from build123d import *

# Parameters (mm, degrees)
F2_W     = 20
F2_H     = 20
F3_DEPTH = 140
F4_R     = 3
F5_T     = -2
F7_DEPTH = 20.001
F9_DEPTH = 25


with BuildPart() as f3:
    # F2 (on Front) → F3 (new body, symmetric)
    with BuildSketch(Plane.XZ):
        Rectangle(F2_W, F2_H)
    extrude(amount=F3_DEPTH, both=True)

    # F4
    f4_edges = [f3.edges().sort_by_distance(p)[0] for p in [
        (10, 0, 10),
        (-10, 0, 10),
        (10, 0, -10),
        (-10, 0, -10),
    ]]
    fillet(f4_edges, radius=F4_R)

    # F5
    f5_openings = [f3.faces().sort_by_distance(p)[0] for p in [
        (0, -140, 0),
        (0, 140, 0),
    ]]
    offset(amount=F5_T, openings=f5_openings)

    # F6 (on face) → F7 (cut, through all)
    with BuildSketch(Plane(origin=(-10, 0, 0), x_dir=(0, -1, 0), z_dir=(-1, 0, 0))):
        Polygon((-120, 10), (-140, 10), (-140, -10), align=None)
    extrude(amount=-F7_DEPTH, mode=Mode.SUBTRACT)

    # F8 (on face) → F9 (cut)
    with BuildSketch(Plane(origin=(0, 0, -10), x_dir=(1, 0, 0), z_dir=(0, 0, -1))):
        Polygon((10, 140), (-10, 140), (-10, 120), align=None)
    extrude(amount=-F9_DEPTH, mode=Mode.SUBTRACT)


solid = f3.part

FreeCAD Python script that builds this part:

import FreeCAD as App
import Part
import Sketcher

V = App.Vector
Q = App.Units.Quantity


def edges_at(feature, points):
    """Names of the edges that pass closest to the given points."""
    edges = feature.Shape.Edges
    near = lambda p: min(range(len(edges)), key=lambda i: edges[i].distToShape(Part.Vertex(*p))[0])
    return sorted({f"Edge{near(p) + 1}" for p in points})


def faces_at(feature, points):
    """Names of the faces that lie closest to the given points."""
    faces = feature.Shape.Faces
    near = lambda p: min(range(len(faces)), key=lambda i: faces[i].distToShape(Part.Vertex(*p))[0])
    return sorted({f"Face{near(p) + 1}" for p in points})


def add_polygon(sketch, points):
    """Adds a closed chain of lines whose ends are joined by coincident constraints."""
    first, n = sketch.GeometryCount, len(points)
    for a, b in zip(points, points[1:] + points[:1]):
        sketch.addGeometry(Part.LineSegment(App.Vector(*a, 0), App.Vector(*b, 0)), False)
    for i in range(n):
        sketch.addConstraint(Sketcher.Constraint("Coincident", first + i, 2, first + (i + 1) % n, 1))

doc = App.newDocument("Part")
params = doc.addObject("Spreadsheet::Sheet", "Params")
for row, (alias, value) in enumerate([
    ("sketch1_width", "20 mm"),
    ("pad1_length", "280 mm"),
    ("fillet_radius", "3 mm"),
    ("thickness_wall", "2 mm"),
    ("sketch2_width", "20 mm"),
    ("sketch3_width", "20 mm"),
    ("pocket2_length", "25 mm"),
], start=1):
    params.set(f"A{row}", alias)
    params.set(f"B{row}", "=" + value)
    params.setAlias(f"B{row}", alias)

body = doc.addObject("PartDesign::Body", "Body")

# Sketch on XZ plane
sketch1 = body.newObject("Sketcher::SketchObject", "Sketch")
sketch1.AttachmentSupport = (doc.getObject("XZ_Plane"), [""])
sketch1.MapMode = "FlatFace"
add_polygon(sketch1, [(-10, 10), (-10, -10), (10, -10), (10, 10)])  # lines 0-3
sketch1.addConstraint([
    Sketcher.Constraint("Vertical", 0),
    Sketcher.Constraint("Horizontal", 1),
    Sketcher.Constraint("Vertical", 2),
    Sketcher.Constraint("Horizontal", 3),
    Sketcher.Constraint("Symmetric", 0, 2, 2, 2, -1, 1),
    Sketcher.Constraint("Equal", 3, 0),
    Sketcher.Constraint("DistanceX", 1, 1, 1, 2, Q("20 mm")),
])
sketch1.setExpression("Constraints[10]", "Params.sketch1_width")
pad1 = body.newObject("PartDesign::Pad", "Pad")
pad1.Profile = sketch1
pad1.setExpression("Length", "Params.pad1_length")
pad1.Midplane = True
doc.recompute()

fillet = body.newObject("PartDesign::Fillet", "Fillet")
fillet.Base = (pad1, edges_at(pad1, [
    (10, 0, 10),
    (-10, 0, 10),
    (10, 0, -10),
    (-10, 0, -10),
]))
fillet.setExpression("Radius", "Params.fillet_radius")
doc.recompute()

thickness = body.newObject("PartDesign::Thickness", "Thickness")
thickness.Base = (fillet, faces_at(fillet, [(0, -140, 0), (0, 140, 0)]))
thickness.setExpression("Value", "Params.thickness_wall")
thickness.Reversed = True
thickness.Join = "Arc"

# Sketch on YZ plane
sketch2 = body.newObject("Sketcher::SketchObject", "Sketch001")
sketch2.AttachmentSupport = (doc.getObject("YZ_Plane"), [""])
sketch2.MapMode = "FlatFace"
sketch2.AttachmentOffset = App.Placement(V(0, 0, -10), App.Rotation())
add_polygon(sketch2, [(120, 10), (140, 10), (140, -10)])  # lines 0-2
sketch2.addConstraint([
    Sketcher.Constraint("Horizontal", 0),
    Sketcher.Constraint("Vertical", 1),
    Sketcher.Constraint("Equal", 0, 1),
    Sketcher.Constraint("DistanceX", 0, 1, 0, 2, Q("20 mm")),
    Sketcher.Constraint("DistanceX", -1, 1, 0, 2, Q("140 mm")),
    Sketcher.Constraint("DistanceY", -1, 1, 0, 2, Q("10 mm")),
])
sketch2.setExpression("Constraints[6]", "Params.sketch2_width")
pocket1 = body.newObject("PartDesign::Pocket", "Pocket")
pocket1.Profile = sketch2
pocket1.Type = "ThroughAll"
pocket1.Reversed = True

# Sketch on XY plane
sketch3 = body.newObject("Sketcher::SketchObject", "Sketch002")
sketch3.AttachmentSupport = (doc.getObject("XY_Plane"), [""])
sketch3.MapMode = "FlatFace"
sketch3.AttachmentOffset = App.Placement(V(0, 0, -10), App.Rotation())
add_polygon(sketch3, [(10, -140), (-10, -140), (-10, -120)])  # lines 0-2
sketch3.addConstraint([
    Sketcher.Constraint("Horizontal", 0),
    Sketcher.Constraint("Vertical", 1),
    Sketcher.Constraint("Equal", 0, 1),
    Sketcher.Constraint("DistanceX", 0, 2, 0, 1, Q("20 mm")),
    Sketcher.Constraint("DistanceX", 0, 2, -1, 1, Q("10 mm")),
    Sketcher.Constraint("DistanceY", 0, 2, -1, 1, Q("140 mm")),
])
sketch3.setExpression("Constraints[6]", "Params.sketch3_width")
pocket2 = body.newObject("PartDesign::Pocket", "Pocket001")
pocket2.Profile = sketch3
pocket2.setExpression("Length", "Params.pocket2_length")
pocket2.Reversed = True

doc.recompute()
